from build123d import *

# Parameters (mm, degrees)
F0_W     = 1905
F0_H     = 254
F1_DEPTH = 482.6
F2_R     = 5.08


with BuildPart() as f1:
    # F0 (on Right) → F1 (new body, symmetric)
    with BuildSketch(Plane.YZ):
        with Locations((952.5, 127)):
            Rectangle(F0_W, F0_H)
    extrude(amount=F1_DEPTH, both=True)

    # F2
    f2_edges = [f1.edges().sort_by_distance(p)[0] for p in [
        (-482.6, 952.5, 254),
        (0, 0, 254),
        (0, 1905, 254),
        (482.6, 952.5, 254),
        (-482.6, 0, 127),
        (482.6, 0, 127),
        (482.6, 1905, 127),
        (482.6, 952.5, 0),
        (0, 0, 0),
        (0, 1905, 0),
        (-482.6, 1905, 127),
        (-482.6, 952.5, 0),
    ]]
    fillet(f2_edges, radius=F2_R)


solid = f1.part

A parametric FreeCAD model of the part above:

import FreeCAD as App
import Part
import Sketcher
from FreeCAD import Vector
Q = App.Units.Quantity


def add_polygon(sketch, points):
    """Adds a closed chain of lines whose ends are joined by coincident constraints."""
    first, n = sketch.GeometryCount, len(points)
    for a, b in zip(points, points[1:] + points[:1]):
        sketch.addGeometry(Part.LineSegment(App.Vector(*a, 0), App.Vector(*b, 0)), False)
    for i in range(n):
        sketch.addConstraint(Sketcher.Constraint("Coincident", first + i, 2, first + (i + 1) % n, 1))

doc = App.newDocument("Part")
params = doc.addObject("Spreadsheet::Sheet", "Params")
for row, (alias, value) in enumerate([
    ("sketch1_width", "75 in"),
    ("sketch1_height", "10 in"),
    ("pad1_length", "38 in"),
    ("fillet_radius", "0.2 in"),
], start=1):
    params.set(f"A{row}", alias)
    params.set(f"B{row}", "=" + value)
    params.setAlias(f"B{row}", alias)

body = doc.addObject("PartDesign::Body", "Body")

# Sketch on YZ plane
sketch1 = body.newObject("Sketcher::SketchObject", "Sketch")
sketch1.AttachmentSupport = (doc.getObject("YZ_Plane"), [""])
sketch1.MapMode = "FlatFace"
add_polygon(sketch1, [(0, 254), (0, 0), (1905, 0), (1905, 254)])  # lines 0-3
sketch1.addConstraint(Sketcher.Constraint("Vertical", 0))
sketch1.addConstraint(Sketcher.Constraint("Horizontal", 1))
sketch1.addConstraint(Sketcher.Constraint("Vertical", 2))
sketch1.addConstraint(Sketcher.Constraint("Horizontal", 3))
sketch1.addConstraint(Sketcher.Constraint("Coincident", 0, 2, -1, 1))
sketch1.addConstraint(Sketcher.Constraint("DistanceX", 1, 1, 1, 2, Q("75 in")))
sketch1.addConstraint(Sketcher.Constraint("DistanceY", 0, 2, 0, 1, Q("10 in")))
sketch1.setExpression("Constraints[9]", "Params.sketch1_width")
sketch1.setExpression("Constraints[10]", "Params.sketch1_height")
pad1 = body.newObject("PartDesign::Pad", "Pad")
pad1.Profile = sketch1
pad1.setExpression("Length", "Params.pad1_length")
pad1.Midplane = True
doc.recompute()

fillet = body.newObject("PartDesign::Fillet", "Fillet")
fillet.Base = (pad1, ["Edge1"])
fillet.UseAllEdges = True
fillet.setExpression("Radius", "Params.fillet_radius")

doc.recompute()
